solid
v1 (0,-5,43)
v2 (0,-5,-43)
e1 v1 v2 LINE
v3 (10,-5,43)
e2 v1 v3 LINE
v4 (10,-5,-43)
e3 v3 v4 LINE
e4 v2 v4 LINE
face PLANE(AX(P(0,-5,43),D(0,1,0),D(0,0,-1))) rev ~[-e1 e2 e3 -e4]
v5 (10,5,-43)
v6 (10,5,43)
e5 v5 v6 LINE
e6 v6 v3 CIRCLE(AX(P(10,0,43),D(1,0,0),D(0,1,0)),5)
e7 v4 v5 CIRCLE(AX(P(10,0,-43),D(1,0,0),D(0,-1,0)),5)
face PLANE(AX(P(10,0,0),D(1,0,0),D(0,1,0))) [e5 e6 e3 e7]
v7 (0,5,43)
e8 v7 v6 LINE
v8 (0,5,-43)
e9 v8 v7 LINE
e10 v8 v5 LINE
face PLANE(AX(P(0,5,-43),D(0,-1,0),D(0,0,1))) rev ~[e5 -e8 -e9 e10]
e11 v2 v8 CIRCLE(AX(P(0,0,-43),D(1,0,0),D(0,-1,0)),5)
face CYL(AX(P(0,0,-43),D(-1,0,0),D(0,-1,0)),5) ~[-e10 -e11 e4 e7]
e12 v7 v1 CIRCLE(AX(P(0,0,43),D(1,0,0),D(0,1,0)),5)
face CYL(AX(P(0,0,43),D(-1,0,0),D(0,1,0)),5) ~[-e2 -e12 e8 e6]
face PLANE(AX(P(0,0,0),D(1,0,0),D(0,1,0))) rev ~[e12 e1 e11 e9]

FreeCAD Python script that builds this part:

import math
import FreeCAD as App
import Part
import Sketcher

V = App.Vector
Q = App.Units.Quantity

doc = App.newDocument("Part")
params = doc.addObject("Spreadsheet::Sheet", "Params")
for row, (alias, value) in enumerate([
    ("sketch1_radius", "5 mm"),
    ("sketch1_height", "86 mm"),
    ("pad1_length", "10 mm"),
], start=1):
    params.set(f"A{row}", alias)
    params.set(f"B{row}", "=" + value)
    params.setAlias(f"B{row}", alias)

body = doc.addObject("PartDesign::Body", "Body")

# Sketch on YZ plane
sketch1 = body.newObject("Sketcher::SketchObject", "Sketch")
sketch1.AttachmentSupport = (doc.getObject("YZ_Plane"), [""])
sketch1.MapMode = "FlatFace"
sketch1.addGeometry(Part.ArcOfCircle(Part.Circle(V(0, -43, 0), V(0, 0, 1), 5), math.radians(180), math.radians(360)), False)
sketch1.addGeometry(Part.LineSegment(V(5, -43, 0), V(5, 43, 0)), False)
sketch1.addGeometry(Part.ArcOfCircle(Part.Circle(V(0, 43, 0), V(0, 0, 1), 5), math.radians(0), math.radians(180)), False)
sketch1.addGeometry(Part.LineSegment(V(-5, 43, 0), V(-5, -43, 0)), False)
sketch1.addConstraint(Sketcher.Constraint("Tangent", 0, 2, 1, 1))
sketch1.addConstraint(Sketcher.Constraint("Tangent", 1, 2, 2, 1))
sketch1.addConstraint(Sketcher.Constraint("Tangent", 2, 2, 3, 1))
sketch1.addConstraint(Sketcher.Constraint("Tangent", 3, 2, 0, 1))
sketch1.addConstraint(Sketcher.Constraint("Vertical", 1))
sketch1.addConstraint(Sketcher.Constraint("Vertical", 3))
sketch1.addConstraint(Sketcher.Constraint("Symmetric", 0, 3, 2, 3, -1, 1))
sketch1.addConstraint(Sketcher.Constraint("Radius", 0, Q("5 mm")))
sketch1.addConstraint(Sketcher.Constraint("DistanceY", 1, 1, 1, 2, Q("86 mm")))
sketch1.setExpression("Constraints[7]", "Params.sketch1_radius")
sketch1.setExpression("Constraints[8]", "Params.sketch1_height")
pad1 = body.newObject("PartDesign::Pad", "Pad")
pad1.Profile = sketch1
pad1.setExpression("Length", "Params.pad1_length")

doc.recompute()
